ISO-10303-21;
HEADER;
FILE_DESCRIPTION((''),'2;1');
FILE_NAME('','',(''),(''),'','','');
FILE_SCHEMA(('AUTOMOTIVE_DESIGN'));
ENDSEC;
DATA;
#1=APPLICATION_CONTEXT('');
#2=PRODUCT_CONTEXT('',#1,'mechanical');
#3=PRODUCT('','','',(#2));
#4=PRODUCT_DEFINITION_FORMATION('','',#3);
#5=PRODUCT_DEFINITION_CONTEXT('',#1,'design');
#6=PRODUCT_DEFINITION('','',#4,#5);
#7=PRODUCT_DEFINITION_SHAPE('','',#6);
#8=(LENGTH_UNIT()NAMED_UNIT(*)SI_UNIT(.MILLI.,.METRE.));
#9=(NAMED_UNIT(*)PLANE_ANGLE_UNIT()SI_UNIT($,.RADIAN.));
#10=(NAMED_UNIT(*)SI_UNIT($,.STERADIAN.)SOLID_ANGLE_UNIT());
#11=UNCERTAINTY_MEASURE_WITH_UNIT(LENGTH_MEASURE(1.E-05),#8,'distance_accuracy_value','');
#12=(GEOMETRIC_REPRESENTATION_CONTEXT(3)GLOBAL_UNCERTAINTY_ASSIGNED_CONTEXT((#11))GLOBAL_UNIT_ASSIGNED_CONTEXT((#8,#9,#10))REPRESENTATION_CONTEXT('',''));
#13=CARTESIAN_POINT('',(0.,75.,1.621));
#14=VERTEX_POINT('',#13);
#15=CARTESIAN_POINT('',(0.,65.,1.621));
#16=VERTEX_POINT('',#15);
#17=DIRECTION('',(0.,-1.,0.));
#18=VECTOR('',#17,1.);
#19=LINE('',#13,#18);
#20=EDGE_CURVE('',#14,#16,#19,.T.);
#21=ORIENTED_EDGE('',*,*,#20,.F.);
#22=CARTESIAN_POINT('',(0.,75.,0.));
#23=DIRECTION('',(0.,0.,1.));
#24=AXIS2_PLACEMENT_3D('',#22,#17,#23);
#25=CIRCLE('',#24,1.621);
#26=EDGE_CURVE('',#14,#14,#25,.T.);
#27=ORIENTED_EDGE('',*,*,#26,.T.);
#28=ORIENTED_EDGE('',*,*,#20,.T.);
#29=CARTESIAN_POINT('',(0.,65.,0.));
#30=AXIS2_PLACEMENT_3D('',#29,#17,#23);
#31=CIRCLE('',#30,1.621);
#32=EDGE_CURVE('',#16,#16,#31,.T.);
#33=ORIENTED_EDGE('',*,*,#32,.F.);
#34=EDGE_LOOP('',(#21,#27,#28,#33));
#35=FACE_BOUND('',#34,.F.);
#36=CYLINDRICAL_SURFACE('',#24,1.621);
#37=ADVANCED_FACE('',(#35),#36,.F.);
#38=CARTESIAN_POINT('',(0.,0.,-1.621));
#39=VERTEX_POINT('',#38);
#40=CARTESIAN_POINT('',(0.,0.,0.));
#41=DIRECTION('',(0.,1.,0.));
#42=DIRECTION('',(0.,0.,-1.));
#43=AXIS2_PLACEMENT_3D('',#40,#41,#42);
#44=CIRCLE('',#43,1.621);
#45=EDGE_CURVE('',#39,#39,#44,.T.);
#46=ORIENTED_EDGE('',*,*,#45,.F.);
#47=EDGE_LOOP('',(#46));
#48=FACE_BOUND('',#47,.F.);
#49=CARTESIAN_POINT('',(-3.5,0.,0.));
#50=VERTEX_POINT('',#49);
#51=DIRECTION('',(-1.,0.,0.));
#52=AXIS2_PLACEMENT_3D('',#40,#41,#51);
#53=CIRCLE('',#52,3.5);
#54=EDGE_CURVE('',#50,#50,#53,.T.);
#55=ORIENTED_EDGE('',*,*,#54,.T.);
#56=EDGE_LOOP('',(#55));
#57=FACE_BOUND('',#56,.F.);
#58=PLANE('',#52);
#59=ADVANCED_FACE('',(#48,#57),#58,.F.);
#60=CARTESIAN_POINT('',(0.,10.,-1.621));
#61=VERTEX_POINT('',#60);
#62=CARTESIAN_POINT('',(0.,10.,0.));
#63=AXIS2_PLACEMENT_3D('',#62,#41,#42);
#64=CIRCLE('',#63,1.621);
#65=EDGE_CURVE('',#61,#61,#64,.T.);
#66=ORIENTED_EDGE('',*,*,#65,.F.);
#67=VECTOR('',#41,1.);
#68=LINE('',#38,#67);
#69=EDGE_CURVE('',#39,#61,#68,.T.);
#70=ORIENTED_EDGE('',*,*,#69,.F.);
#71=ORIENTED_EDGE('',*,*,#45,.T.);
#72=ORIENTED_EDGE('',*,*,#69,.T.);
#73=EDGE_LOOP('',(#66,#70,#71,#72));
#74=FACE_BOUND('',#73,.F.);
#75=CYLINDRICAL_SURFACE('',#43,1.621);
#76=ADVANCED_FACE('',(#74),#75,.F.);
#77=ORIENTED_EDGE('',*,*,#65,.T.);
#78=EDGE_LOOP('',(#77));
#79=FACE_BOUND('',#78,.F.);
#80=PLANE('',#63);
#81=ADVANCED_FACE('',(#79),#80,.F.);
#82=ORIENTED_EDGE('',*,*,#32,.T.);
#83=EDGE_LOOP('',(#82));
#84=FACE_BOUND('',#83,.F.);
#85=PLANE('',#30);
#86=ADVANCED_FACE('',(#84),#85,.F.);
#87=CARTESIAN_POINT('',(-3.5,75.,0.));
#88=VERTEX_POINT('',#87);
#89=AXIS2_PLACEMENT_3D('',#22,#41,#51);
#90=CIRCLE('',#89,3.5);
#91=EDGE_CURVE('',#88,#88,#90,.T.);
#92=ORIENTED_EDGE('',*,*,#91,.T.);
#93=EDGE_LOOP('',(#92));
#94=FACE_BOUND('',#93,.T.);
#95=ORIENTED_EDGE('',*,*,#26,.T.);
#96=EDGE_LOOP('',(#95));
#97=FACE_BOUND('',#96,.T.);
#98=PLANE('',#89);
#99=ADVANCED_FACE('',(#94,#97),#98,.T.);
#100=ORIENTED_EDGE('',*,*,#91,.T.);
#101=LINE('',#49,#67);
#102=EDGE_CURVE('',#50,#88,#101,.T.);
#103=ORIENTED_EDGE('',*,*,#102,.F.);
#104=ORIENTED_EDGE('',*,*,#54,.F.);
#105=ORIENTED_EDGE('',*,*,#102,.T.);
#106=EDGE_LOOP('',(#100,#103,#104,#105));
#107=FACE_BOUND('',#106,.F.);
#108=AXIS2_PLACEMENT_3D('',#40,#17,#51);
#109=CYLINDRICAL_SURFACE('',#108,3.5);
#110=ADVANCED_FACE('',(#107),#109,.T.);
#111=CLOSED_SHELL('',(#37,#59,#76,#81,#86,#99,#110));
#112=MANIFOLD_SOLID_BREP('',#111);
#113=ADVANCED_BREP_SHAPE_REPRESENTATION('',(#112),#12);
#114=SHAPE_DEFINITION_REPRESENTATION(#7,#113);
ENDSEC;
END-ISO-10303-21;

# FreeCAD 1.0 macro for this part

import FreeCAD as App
import Part
import Sketcher

V = App.Vector
Q = App.Units.Quantity

doc = App.newDocument("Part")
body = doc.addObject("PartDesign::Body", "Body")

sketch1 = body.newObject("Sketcher::SketchObject", "Sketch")
sketch1.AttachmentSupport = (doc.getObject("XZ_Plane"), [""])
sketch1.MapMode = "FlatFace"
sketch1.addGeometry(Part.Circle(V(0, 0, 0), V(0, 0, 1), 3.5), False)
sketch1.addConstraint([
    Sketcher.Constraint("Coincident", 0, 3, -1, 1),
    Sketcher.Constraint("Diameter", 0, Q("7 mm")),
])
pad1 = body.newObject("PartDesign::Pad", "Pad")
pad1.Profile = sketch1
pad1.Length = 75
pad1.Reversed = True

sketch2 = body.newObject("Sketcher::SketchObject", "Sketch001")
sketch2.AttachmentSupport = (doc.getObject("XZ_Plane"), [""])
sketch2.MapMode = "FlatFace"
sketch2.AttachmentOffset = App.Placement(V(0, 0, -75), App.Rotation())
sketch2.addGeometry(Part.Circle(V(0, 0, 0), V(0, 0, 1), 1.6), False)
sketch2.addConstraint([
    Sketcher.Constraint("Coincident", 0, 3, -1, 1),
    Sketcher.Constraint("Diameter", 0, Q("3.242 mm")),
])
doc.recompute()
hole = body.newObject("PartDesign::Hole", "Hole")
hole.Profile = sketch2
hole.ThreadType = "None"
hole.Diameter = 3.242
hole.DepthType = "Dimension"
hole.Depth = 10
hole.DrillPoint = "Flat"
hole.Reversed = True

sketch3 = body.newObject("Sketcher::SketchObject", "Sketch002")
sketch3.AttachmentSupport = (doc.getObject("XZ_Plane"), [""])
sketch3.MapMode = "FlatFace"
sketch3.addGeometry(Part.Circle(V(0, 0, 0), V(0, 0, 1), 1.6), False)
sketch3.addConstraint([
    Sketcher.Constraint("Coincident", 0, 3, -1, 1),
    Sketcher.Constraint("Diameter", 0, Q("3.242 mm")),
])
doc.recompute()
hole2 = body.newObject("PartDesign::Hole", "Hole001")
hole2.Profile = sketch3
hole2.ThreadType = "None"
hole2.Diameter = 3.242
hole2.DepthType = "Dimension"
hole2.Depth = 10
hole2.DrillPoint = "Flat"

doc.recompute()
